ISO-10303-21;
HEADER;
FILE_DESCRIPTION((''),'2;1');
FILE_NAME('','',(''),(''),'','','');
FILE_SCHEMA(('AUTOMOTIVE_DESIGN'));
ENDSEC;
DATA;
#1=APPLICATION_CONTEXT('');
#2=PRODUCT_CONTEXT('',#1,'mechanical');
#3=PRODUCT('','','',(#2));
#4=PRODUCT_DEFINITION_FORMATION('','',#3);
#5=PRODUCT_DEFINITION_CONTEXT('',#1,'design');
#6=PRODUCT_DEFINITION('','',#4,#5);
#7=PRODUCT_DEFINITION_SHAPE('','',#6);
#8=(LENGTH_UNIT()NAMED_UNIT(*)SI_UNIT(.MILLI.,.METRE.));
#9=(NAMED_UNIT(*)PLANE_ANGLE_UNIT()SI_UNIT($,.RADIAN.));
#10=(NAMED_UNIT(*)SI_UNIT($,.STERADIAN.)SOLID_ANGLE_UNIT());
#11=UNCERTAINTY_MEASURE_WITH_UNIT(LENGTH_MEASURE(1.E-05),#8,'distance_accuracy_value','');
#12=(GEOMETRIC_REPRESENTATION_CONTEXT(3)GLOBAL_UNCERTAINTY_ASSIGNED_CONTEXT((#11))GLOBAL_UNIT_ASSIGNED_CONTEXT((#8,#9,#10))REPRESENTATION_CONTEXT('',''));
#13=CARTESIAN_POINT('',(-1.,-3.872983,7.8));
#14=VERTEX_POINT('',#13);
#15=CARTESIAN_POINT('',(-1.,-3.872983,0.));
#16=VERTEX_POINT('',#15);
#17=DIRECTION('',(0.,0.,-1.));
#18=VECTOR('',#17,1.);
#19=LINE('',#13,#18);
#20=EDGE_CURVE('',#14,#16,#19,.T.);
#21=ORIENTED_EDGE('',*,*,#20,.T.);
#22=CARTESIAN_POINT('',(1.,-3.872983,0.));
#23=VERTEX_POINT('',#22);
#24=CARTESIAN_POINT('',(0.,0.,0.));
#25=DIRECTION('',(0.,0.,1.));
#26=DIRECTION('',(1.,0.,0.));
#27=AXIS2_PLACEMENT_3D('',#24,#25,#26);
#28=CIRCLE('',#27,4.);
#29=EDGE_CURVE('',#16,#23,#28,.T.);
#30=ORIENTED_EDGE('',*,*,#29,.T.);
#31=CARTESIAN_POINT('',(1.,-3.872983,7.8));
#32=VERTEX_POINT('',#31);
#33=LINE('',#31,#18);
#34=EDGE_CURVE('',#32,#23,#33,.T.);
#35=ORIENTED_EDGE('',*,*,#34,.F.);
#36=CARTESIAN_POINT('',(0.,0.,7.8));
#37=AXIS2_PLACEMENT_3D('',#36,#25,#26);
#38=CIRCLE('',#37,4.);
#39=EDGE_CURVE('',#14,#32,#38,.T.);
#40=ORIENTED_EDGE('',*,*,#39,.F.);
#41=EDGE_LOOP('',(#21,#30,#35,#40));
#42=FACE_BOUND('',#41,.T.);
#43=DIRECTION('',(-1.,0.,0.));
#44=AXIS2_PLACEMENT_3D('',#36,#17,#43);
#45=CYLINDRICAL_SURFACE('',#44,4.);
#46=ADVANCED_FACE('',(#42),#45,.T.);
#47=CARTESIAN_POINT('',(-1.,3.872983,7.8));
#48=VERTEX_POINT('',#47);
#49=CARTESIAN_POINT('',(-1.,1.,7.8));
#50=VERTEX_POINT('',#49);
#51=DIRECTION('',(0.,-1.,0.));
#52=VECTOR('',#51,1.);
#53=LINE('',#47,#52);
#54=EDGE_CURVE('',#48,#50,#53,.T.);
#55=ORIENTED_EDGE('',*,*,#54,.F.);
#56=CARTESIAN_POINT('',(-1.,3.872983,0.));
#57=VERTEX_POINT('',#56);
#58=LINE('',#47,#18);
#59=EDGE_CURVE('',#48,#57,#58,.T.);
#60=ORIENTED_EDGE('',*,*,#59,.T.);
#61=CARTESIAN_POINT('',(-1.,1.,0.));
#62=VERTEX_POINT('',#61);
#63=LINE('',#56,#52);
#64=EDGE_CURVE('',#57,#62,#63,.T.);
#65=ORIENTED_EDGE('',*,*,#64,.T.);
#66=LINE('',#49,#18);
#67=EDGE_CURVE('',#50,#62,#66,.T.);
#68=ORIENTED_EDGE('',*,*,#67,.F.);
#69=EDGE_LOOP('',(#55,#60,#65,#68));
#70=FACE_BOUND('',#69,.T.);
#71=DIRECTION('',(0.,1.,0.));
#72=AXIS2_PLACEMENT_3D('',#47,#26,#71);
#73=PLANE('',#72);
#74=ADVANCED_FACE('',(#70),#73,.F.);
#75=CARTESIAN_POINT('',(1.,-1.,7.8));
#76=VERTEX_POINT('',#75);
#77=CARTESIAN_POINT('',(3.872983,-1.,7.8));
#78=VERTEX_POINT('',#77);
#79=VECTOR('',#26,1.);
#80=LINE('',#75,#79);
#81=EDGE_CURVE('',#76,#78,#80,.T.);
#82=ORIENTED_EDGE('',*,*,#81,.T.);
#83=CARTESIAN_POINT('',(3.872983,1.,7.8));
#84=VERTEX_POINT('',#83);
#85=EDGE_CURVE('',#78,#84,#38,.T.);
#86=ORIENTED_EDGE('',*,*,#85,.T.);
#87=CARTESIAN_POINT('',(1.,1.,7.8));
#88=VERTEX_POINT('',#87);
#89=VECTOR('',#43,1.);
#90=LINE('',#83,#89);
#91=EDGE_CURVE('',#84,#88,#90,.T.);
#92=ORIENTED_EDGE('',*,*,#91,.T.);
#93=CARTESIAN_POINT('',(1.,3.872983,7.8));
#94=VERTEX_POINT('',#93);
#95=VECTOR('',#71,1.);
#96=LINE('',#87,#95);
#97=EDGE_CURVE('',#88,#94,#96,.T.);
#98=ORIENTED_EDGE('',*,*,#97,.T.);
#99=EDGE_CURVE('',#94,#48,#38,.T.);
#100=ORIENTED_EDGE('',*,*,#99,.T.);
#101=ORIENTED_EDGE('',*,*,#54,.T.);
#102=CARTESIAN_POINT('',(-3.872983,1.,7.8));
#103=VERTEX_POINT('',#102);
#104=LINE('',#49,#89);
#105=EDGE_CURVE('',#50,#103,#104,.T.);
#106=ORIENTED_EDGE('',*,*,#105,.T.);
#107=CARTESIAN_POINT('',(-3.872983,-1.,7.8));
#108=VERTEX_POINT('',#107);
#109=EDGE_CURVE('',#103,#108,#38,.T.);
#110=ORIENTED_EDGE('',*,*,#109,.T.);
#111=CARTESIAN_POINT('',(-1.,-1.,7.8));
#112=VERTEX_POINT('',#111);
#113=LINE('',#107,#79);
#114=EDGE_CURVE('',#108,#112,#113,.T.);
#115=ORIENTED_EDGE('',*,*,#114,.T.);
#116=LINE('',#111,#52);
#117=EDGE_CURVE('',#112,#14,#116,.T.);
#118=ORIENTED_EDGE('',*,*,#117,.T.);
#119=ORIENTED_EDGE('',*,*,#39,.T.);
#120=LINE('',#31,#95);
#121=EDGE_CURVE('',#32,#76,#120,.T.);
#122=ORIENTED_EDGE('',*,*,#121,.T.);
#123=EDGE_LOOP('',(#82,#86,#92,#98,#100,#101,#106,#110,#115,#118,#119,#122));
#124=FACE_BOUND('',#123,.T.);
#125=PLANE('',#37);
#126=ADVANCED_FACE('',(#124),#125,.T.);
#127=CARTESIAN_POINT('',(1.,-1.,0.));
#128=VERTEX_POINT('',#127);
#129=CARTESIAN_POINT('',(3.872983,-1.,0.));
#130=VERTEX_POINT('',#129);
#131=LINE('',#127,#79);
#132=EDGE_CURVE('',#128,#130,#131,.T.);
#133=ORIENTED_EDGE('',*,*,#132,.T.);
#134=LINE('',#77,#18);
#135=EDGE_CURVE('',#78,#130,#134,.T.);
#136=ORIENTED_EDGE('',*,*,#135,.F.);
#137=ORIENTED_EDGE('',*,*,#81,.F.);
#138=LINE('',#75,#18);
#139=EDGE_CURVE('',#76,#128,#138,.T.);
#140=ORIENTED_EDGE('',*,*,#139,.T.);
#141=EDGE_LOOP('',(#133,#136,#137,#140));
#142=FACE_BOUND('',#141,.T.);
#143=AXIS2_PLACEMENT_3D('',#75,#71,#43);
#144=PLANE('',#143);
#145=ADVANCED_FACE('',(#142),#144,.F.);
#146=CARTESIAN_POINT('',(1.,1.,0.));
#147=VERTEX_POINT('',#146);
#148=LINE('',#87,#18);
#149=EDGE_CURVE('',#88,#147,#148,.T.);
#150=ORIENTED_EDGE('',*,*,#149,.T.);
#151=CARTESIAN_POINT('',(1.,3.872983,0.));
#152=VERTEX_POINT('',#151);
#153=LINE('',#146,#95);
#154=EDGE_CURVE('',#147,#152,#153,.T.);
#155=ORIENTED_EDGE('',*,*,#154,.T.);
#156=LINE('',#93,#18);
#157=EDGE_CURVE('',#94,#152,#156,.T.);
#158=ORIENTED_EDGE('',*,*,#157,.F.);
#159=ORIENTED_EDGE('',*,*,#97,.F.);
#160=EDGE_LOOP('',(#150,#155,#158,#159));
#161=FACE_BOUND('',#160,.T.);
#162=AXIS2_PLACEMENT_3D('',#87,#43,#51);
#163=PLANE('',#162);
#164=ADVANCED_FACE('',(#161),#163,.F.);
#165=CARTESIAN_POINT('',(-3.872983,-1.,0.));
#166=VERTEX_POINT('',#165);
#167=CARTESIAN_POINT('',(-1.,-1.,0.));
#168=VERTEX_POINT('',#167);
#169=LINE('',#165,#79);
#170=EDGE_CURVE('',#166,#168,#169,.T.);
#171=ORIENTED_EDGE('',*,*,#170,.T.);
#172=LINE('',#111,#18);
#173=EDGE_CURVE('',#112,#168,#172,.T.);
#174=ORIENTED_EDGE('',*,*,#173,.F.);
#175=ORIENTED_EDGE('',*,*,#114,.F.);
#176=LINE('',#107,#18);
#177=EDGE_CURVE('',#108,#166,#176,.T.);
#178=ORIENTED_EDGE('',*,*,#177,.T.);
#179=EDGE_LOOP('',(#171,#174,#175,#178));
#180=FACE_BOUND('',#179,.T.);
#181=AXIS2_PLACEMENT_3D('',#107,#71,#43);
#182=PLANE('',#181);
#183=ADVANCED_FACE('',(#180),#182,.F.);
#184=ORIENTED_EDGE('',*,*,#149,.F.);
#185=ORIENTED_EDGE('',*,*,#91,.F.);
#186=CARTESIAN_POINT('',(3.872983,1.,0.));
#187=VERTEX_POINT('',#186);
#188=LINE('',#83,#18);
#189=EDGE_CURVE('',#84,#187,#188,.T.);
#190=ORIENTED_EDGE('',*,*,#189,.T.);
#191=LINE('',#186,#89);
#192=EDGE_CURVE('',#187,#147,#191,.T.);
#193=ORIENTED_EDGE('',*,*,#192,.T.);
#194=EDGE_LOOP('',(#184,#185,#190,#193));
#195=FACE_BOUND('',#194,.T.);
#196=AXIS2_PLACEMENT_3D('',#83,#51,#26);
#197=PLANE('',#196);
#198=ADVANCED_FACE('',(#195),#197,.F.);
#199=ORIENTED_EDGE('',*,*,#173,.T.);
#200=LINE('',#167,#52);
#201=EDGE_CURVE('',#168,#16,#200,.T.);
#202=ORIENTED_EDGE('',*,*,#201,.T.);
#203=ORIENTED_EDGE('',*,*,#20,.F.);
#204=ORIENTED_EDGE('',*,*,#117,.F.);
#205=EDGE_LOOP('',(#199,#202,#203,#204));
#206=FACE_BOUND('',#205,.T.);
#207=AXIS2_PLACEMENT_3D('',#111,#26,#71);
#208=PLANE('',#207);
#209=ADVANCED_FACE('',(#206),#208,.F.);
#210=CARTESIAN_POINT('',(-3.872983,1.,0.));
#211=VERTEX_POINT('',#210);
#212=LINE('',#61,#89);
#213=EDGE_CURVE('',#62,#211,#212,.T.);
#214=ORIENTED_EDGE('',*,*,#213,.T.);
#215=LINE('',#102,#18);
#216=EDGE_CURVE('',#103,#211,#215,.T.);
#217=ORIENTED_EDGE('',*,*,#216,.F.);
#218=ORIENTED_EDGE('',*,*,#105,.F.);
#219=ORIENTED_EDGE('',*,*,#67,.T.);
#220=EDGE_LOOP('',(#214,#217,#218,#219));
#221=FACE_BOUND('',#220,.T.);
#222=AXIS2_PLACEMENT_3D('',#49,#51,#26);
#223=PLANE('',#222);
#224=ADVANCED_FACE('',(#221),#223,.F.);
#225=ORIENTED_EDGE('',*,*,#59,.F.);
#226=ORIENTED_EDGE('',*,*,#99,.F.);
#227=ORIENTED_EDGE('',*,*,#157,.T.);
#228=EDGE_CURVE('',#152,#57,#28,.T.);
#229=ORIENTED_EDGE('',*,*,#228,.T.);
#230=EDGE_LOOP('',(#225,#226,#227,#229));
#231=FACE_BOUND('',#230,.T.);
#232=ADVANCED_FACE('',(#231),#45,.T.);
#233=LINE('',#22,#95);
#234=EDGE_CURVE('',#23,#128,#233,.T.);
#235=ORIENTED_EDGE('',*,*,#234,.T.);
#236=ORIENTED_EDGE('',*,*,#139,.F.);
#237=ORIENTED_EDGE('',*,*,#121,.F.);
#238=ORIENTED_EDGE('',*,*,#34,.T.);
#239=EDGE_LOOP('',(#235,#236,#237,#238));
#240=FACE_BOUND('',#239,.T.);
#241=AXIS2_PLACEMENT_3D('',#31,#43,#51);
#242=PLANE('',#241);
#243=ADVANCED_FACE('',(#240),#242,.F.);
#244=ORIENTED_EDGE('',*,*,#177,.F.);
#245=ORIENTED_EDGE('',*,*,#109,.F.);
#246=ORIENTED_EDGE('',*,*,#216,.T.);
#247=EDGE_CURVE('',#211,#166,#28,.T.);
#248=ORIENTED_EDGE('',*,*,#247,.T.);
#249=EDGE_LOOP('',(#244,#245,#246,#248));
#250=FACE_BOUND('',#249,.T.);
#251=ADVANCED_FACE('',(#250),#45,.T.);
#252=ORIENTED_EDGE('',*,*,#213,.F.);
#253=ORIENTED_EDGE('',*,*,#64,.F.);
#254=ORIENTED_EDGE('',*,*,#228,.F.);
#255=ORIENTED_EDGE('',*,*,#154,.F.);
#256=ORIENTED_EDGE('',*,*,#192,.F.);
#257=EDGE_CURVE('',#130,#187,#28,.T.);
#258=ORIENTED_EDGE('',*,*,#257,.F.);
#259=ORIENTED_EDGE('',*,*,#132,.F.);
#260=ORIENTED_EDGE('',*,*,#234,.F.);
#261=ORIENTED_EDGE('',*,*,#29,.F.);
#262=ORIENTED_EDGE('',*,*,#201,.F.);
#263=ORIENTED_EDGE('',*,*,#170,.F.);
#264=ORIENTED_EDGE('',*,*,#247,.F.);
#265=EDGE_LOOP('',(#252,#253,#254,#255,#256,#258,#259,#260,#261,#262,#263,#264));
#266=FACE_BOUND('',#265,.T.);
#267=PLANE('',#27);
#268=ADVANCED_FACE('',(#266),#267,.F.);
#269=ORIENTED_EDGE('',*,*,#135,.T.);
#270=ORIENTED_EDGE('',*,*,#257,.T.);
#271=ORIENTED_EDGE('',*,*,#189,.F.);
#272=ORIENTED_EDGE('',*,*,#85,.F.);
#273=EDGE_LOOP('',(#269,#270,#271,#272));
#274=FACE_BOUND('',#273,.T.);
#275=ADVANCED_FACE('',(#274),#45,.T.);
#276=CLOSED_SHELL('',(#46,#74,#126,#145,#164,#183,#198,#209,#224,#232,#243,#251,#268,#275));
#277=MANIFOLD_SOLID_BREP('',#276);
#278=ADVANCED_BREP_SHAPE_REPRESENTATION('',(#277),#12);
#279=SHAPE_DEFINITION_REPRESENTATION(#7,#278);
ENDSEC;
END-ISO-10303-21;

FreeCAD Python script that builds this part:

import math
import FreeCAD as App
import Part
import Sketcher

V = App.Vector
Q = App.Units.Quantity

doc = App.newDocument("Part")
params = doc.addObject("Spreadsheet::Sheet", "Params")
for row, (alias, value) in enumerate([
    ("sketch1_radius", "4 mm"),
    ("pad1_length", "7.8 mm"),
], start=1):
    params.set(f"A{row}", alias)
    params.set(f"B{row}", "=" + value)
    params.setAlias(f"B{row}", alias)

body = doc.addObject("PartDesign::Body", "Body")

# Sketch on XY plane
sketch1 = body.newObject("Sketcher::SketchObject", "Sketch")
sketch1.AttachmentSupport = (doc.getObject("XY_Plane"), [""])
sketch1.MapMode = "FlatFace"
sketch1.addGeometry([
    Part.LineSegment(V(-1, 1, 0), V(-3.9, 1, 0)),  # 0
    Part.ArcOfCircle(Part.Circle(V(0, 0, 0), V(0, 0, 1), 4), math.radians(166), math.radians(194)),  # 1
    Part.LineSegment(V(-3.9, -1, 0), V(-1, -1, 0)),  # 2
    Part.LineSegment(V(-1, -1, 0), V(-1, -3.9, 0)),  # 3
    Part.ArcOfCircle(Part.Circle(V(0, 0, 0), V(0, 0, 1), 4), math.radians(-104), math.radians(-76)),  # 4
    Part.LineSegment(V(1, -3.9, 0), V(1, -1, 0)),  # 5
    Part.LineSegment(V(1, -1, 0), V(3.9, -1, 0)),  # 6
    Part.ArcOfCircle(Part.Circle(V(0, 0, 0), V(0, 0, 1), 4), math.radians(-14), math.radians(14)),  # 7
    Part.LineSegment(V(3.9, 1, 0), V(1, 1, 0)),  # 8
    Part.LineSegment(V(1, 1, 0), V(1, 3.9, 0)),  # 9
    Part.ArcOfCircle(Part.Circle(V(0, 0, 0), V(0, 0, 1), 4), math.radians(76), math.radians(104)),  # 10
    Part.LineSegment(V(-1, 3.9, 0), V(-1, 1, 0)),  # 11
], False)
sketch1.addConstraint([
    Sketcher.Constraint("Coincident", 0, 2, 1, 1),
    Sketcher.Constraint("Coincident", 1, 2, 2, 1),
    Sketcher.Constraint("Coincident", 2, 2, 3, 1),
    Sketcher.Constraint("Coincident", 3, 2, 4, 1),
    Sketcher.Constraint("Coincident", 4, 2, 5, 1),
    Sketcher.Constraint("Coincident", 5, 2, 6, 1),
    Sketcher.Constraint("Coincident", 6, 2, 7, 1),
    Sketcher.Constraint("Coincident", 7, 2, 8, 1),
    Sketcher.Constraint("Coincident", 8, 2, 9, 1),
    Sketcher.Constraint("Coincident", 9, 2, 10, 1),
    Sketcher.Constraint("Coincident", 10, 2, 11, 1),
    Sketcher.Constraint("Coincident", 11, 2, 0, 1),
    Sketcher.Constraint("Horizontal", 0),
    Sketcher.Constraint("Horizontal", 2),
    Sketcher.Constraint("Vertical", 3),
    Sketcher.Constraint("Vertical", 5),
    Sketcher.Constraint("Horizontal", 6),
    Sketcher.Constraint("Horizontal", 8),
    Sketcher.Constraint("Vertical", 9),
    Sketcher.Constraint("Vertical", 11),
    Sketcher.Constraint("Coincident", 1, 3, -1, 1),
    Sketcher.Constraint("Coincident", 4, 3, -1, 1),
    Sketcher.Constraint("Coincident", 7, 3, -1, 1),
    Sketcher.Constraint("Coincident", 10, 3, -1, 1),
    Sketcher.Constraint("Equal", 1, 4),
    Sketcher.Constraint("Equal", 4, 7),
    Sketcher.Constraint("Equal", 7, 10),
    Sketcher.Constraint("Symmetric", 2, 2, 8, 2, -1, 1),
    Sketcher.Constraint("Symmetric", 5, 2, 11, 2, -1, 1),
    Sketcher.Constraint("Symmetric", 2, 2, 5, 2, -2),
    Sketcher.Constraint("Equal", 8, 3),
    Sketcher.Constraint("Radius", 1, Q("4 mm")),
    Sketcher.Constraint("DistanceY", -1, 1, 0, 2, Q("1 mm")),
])
sketch1.setExpression("Constraints[31]", "Params.sketch1_radius")
pad1 = body.newObject("PartDesign::Pad", "Pad")
pad1.Profile = sketch1
pad1.setExpression("Length", "Params.pad1_length")

doc.recompute()
